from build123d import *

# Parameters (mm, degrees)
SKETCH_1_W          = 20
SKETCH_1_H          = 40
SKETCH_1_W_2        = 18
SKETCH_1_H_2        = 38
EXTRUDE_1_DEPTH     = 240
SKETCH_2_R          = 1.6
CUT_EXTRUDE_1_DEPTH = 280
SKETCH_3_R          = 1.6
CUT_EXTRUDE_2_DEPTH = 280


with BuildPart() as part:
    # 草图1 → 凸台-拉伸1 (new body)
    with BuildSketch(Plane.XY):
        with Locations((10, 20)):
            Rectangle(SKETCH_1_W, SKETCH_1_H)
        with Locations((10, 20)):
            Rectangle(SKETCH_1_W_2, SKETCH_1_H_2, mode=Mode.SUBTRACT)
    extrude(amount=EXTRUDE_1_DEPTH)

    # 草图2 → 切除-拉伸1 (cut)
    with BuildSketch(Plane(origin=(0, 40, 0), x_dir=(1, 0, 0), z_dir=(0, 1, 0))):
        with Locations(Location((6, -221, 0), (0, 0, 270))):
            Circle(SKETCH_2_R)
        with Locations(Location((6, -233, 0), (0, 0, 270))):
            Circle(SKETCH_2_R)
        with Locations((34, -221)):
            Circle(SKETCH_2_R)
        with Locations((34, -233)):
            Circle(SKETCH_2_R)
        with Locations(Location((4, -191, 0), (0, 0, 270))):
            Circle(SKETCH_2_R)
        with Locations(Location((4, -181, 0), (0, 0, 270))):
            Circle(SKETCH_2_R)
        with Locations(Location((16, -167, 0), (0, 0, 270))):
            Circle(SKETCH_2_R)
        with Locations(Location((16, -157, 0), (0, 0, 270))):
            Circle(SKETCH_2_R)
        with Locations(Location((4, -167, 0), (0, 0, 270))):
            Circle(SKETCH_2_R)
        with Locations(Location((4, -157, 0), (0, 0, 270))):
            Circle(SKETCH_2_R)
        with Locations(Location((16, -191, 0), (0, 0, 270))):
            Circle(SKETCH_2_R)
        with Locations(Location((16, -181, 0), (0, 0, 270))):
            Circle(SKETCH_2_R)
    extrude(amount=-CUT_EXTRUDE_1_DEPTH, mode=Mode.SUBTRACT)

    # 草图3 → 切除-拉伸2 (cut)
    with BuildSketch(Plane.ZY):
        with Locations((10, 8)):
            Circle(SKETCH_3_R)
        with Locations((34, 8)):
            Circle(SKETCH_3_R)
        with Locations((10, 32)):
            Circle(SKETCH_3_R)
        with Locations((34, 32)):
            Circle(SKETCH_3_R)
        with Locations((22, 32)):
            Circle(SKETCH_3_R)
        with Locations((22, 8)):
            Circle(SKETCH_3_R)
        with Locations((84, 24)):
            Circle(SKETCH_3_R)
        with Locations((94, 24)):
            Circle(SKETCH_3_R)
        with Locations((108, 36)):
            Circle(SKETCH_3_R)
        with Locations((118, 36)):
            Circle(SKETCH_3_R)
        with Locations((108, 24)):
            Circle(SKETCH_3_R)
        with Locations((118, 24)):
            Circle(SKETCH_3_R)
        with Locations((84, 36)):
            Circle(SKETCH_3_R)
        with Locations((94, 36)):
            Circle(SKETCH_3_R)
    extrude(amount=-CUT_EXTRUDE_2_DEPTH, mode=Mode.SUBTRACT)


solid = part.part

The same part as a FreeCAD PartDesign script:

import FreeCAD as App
import Part
import Sketcher

V = App.Vector
Q = App.Units.Quantity


def add_polygon(sketch, points):
    """Adds a closed chain of lines whose ends are joined by coincident constraints."""
    first, n = sketch.GeometryCount, len(points)
    for a, b in zip(points, points[1:] + points[:1]):
        sketch.addGeometry(Part.LineSegment(App.Vector(*a, 0), App.Vector(*b, 0)), False)
    for i in range(n):
        sketch.addConstraint(Sketcher.Constraint("Coincident", first + i, 2, first + (i + 1) % n, 1))

doc = App.newDocument("Part")
body = doc.addObject("PartDesign::Body", "Body")

sketch1 = doc.addObject("Sketcher::SketchObject", "Sketch")
body.addObject(sketch1)
sketch1.AttachmentSupport = (doc.XY_Plane, [""])
sketch1.MapMode = "FlatFace"
add_polygon(sketch1, [(0, 40), (0, 0), (20, 0), (20, 40)])
add_polygon(sketch1, [(19, 1), (1, 1), (1, 39), (19, 39)])
sketch1.addConstraint([
    Sketcher.Constraint("Vertical", 0),
    Sketcher.Constraint("Horizontal", 1),
    Sketcher.Constraint("Vertical", 2),
    Sketcher.Constraint("Horizontal", 3),
    Sketcher.Constraint("Horizontal", 4),
    Sketcher.Constraint("Vertical", 5),
    Sketcher.Constraint("Horizontal", 6),
    Sketcher.Constraint("Vertical", 7),
    Sketcher.Constraint("Coincident", 0, 2, -1, 1),
    Sketcher.Constraint("DistanceX", 1, 1, 1, 2, Q("20 mm")),
    Sketcher.Constraint("DistanceX", 4, 2, 4, 1, Q("18 mm")),
    Sketcher.Constraint("DistanceY", 0, 2, 0, 1, Q("40 mm")),
    Sketcher.Constraint("DistanceY", 5, 1, 5, 2, Q("38 mm")),
    Sketcher.Constraint("DistanceX", -1, 1, 4, 2, Q("1 mm")),
    Sketcher.Constraint("DistanceY", -1, 1, 4, 2, Q("1 mm")),
])
pad1 = doc.addObject("PartDesign::Pad", "Pad")
body.addObject(pad1)
pad1.Profile = sketch1
pad1.Length = 240

sketch2 = doc.addObject("Sketcher::SketchObject", "Sketch001")
body.addObject(sketch2)
sketch2.AttachmentSupport = (doc.XZ_Plane, [""])
sketch2.MapMode = "FlatFace"
sketch2.AttachmentOffset = App.Placement(V(0, 0, -40), App.Rotation())
sketch2.addGeometry([
    Part.Circle(V(6, 221, 0), V(0, 0, 1), 1.6),
    Part.Circle(V(6, 233, 0), V(0, 0, 1), 1.6),
    Part.Circle(V(34, 221, 0), V(0, 0, 1), 1.6),
    Part.Circle(V(34, 233, 0), V(0, 0, 1), 1.6),
    Part.Circle(V(4, 191, 0), V(0, 0, 1), 1.6),
    Part.Circle(V(4, 181, 0), V(0, 0, 1), 1.6),
    Part.Circle(V(16, 167, 0), V(0, 0, 1), 1.6),
    Part.Circle(V(16, 157, 0), V(0, 0, 1), 1.6),
    Part.Circle(V(4, 167, 0), V(0, 0, 1), 1.6),
    Part.Circle(V(4, 157, 0), V(0, 0, 1), 1.6),
    Part.Circle(V(16, 191, 0), V(0, 0, 1), 1.6),
    Part.Circle(V(16, 181, 0), V(0, 0, 1), 1.6),
], False)
sketch2.addConstraint([
    Sketcher.Constraint("Equal", 0, 1),
    Sketcher.Constraint("Equal", 1, 2),
    Sketcher.Constraint("Equal", 2, 3),
    Sketcher.Constraint("Equal", 3, 4),
    Sketcher.Constraint("Equal", 4, 5),
    Sketcher.Constraint("Equal", 5, 6),
    Sketcher.Constraint("Equal", 6, 7),
    Sketcher.Constraint("Equal", 7, 8),
    Sketcher.Constraint("Equal", 8, 9),
    Sketcher.Constraint("Equal", 9, 10),
    Sketcher.Constraint("Equal", 10, 11),
    Sketcher.Constraint("Horizontal", 0, 3, 2, 3),
    Sketcher.Constraint("Horizontal", 1, 3, 3, 3),
    Sketcher.Constraint("Horizontal", 6, 3, 8, 3),
    Sketcher.Constraint("Horizontal", 7, 3, 9, 3),
    Sketcher.Constraint("Horizontal", 4, 3, 10, 3),
    Sketcher.Constraint("Horizontal", 5, 3, 11, 3),
    Sketcher.Constraint("Vertical", 0, 3, 1, 3),
    Sketcher.Constraint("Vertical", 2, 3, 3, 3),
    Sketcher.Constraint("Vertical", 4, 3, 5, 3),
    Sketcher.Constraint("Vertical", 6, 3, 7, 3),
    Sketcher.Constraint("Vertical", 5, 3, 8, 3),
    Sketcher.Constraint("Vertical", 8, 3, 9, 3),
    Sketcher.Constraint("Vertical", 7, 3, 10, 3),
    Sketcher.Constraint("Vertical", 10, 3, 11, 3),
    Sketcher.Constraint("Diameter", 0, Q("3.2 mm")),
    Sketcher.Constraint("DistanceX", -1, 1, 0, 3, Q("6 mm")),
    Sketcher.Constraint("DistanceY", -1, 1, 0, 3, Q("221 mm")),
    Sketcher.Constraint("DistanceY", -1, 1, 1, 3, Q("233 mm")),
    Sketcher.Constraint("DistanceX", -1, 1, 2, 3, Q("34 mm")),
    Sketcher.Constraint("DistanceX", -1, 1, 4, 3, Q("4 mm")),
    Sketcher.Constraint("DistanceY", -1, 1, 4, 3, Q("191 mm")),
    Sketcher.Constraint("DistanceY", -1, 1, 5, 3, Q("181 mm")),
    Sketcher.Constraint("DistanceX", -1, 1, 6, 3, Q("16 mm")),
    Sketcher.Constraint("DistanceY", -1, 1, 6, 3, Q("167 mm")),
    Sketcher.Constraint("DistanceY", -1, 1, 7, 3, Q("157 mm")),
])
pocket1 = doc.addObject("PartDesign::Pocket", "Pocket")
body.addObject(pocket1)
pocket1.Profile = sketch2
pocket1.Length = 280
pocket1.Reversed = True

sketch3 = doc.addObject("Sketcher::SketchObject", "Sketch002")
body.addObject(sketch3)
sketch3.AttachmentSupport = (doc.YZ_Plane, [""])
sketch3.MapMode = "FlatFace"
sketch3.addGeometry([
    Part.Circle(V(8, 10, 0), V(0, 0, 1), 1.6),
    Part.Circle(V(8, 34, 0), V(0, 0, 1), 1.6),
    Part.Circle(V(32, 10, 0), V(0, 0, 1), 1.6),
    Part.Circle(V(32, 34, 0), V(0, 0, 1), 1.6),
    Part.Circle(V(32, 22, 0), V(0, 0, 1), 1.6),
    Part.Circle(V(8, 22, 0), V(0, 0, 1), 1.6),
    Part.Circle(V(24, 84, 0), V(0, 0, 1), 1.6),
    Part.Circle(V(24, 94, 0), V(0, 0, 1), 1.6),
    Part.Circle(V(36, 108, 0), V(0, 0, 1), 1.6),
    Part.Circle(V(36, 118, 0), V(0, 0, 1), 1.6),
    Part.Circle(V(24, 108, 0), V(0, 0, 1), 1.6),
    Part.Circle(V(24, 118, 0), V(0, 0, 1), 1.6),
    Part.Circle(V(36, 84, 0), V(0, 0, 1), 1.6),
    Part.Circle(V(36, 94, 0), V(0, 0, 1), 1.6),
], False)
sketch3.addConstraint([
    Sketcher.Constraint("Equal", 0, 1),
    Sketcher.Constraint("Equal", 1, 2),
    Sketcher.Constraint("Equal", 2, 3),
    Sketcher.Constraint("Equal", 3, 4),
    Sketcher.Constraint("Equal", 4, 5),
    Sketcher.Constraint("Equal", 5, 6),
    Sketcher.Constraint("Equal", 6, 7),
    Sketcher.Constraint("Equal", 7, 8),
    Sketcher.Constraint("Equal", 8, 9),
    Sketcher.Constraint("Equal", 9, 10),
    Sketcher.Constraint("Equal", 10, 11),
    Sketcher.Constraint("Equal", 11, 12),
    Sketcher.Constraint("Equal", 12, 13),
    Sketcher.Constraint("Horizontal", 0, 3, 2, 3),
    Sketcher.Constraint("Horizontal", 1, 3, 3, 3),
    Sketcher.Constraint("Horizontal", 4, 3, 5, 3),
    Sketcher.Constraint("Horizontal", 8, 3, 10, 3),
    Sketcher.Constraint("Horizontal", 9, 3, 11, 3),
    Sketcher.Constraint("Horizontal", 6, 3, 12, 3),
    Sketcher.Constraint("Horizontal", 7, 3, 13, 3),
    Sketcher.Constraint("Vertical", 0, 3, 1, 3),
    Sketcher.Constraint("Vertical", 2, 3, 3, 3),
    Sketcher.Constraint("Vertical", 3, 3, 4, 3),
    Sketcher.Constraint("Vertical", 1, 3, 5, 3),
    Sketcher.Constraint("Vertical", 6, 3, 7, 3),
    Sketcher.Constraint("Vertical", 8, 3, 9, 3),
    Sketcher.Constraint("Vertical", 7, 3, 10, 3),
    Sketcher.Constraint("Vertical", 10, 3, 11, 3),
    Sketcher.Constraint("Vertical", 9, 3, 12, 3),
    Sketcher.Constraint("Vertical", 12, 3, 13, 3),
    Sketcher.Constraint("Diameter", 0, Q("3.2 mm")),
    Sketcher.Constraint("DistanceX", -1, 1, 0, 3, Q("8 mm")),
    Sketcher.Constraint("DistanceY", -1, 1, 0, 3, Q("10 mm")),
    Sketcher.Constraint("DistanceY", -1, 1, 1, 3, Q("34 mm")),
    Sketcher.Constraint("DistanceX", -1, 1, 2, 3, Q("32 mm")),
    Sketcher.Constraint("DistanceY", -1, 1, 4, 3, Q("22 mm")),
    Sketcher.Constraint("DistanceX", -1, 1, 6, 3, Q("24 mm")),
    Sketcher.Constraint("DistanceY", -1, 1, 6, 3, Q("84 mm")),
    Sketcher.Constraint("DistanceY", -1, 1, 7, 3, Q("94 mm")),
    Sketcher.Constraint("DistanceX", -1, 1, 8, 3, Q("36 mm")),
    Sketcher.Constraint("DistanceY", -1, 1, 8, 3, Q("108 mm")),
    Sketcher.Constraint("DistanceY", -1, 1, 9, 3, Q("118 mm")),
])
pocket2 = doc.addObject("PartDesign::Pocket", "Pocket001")
body.addObject(pocket2)
pocket2.Profile = sketch3
pocket2.Length = 280
pocket2.Reversed = True

doc.recompute()
